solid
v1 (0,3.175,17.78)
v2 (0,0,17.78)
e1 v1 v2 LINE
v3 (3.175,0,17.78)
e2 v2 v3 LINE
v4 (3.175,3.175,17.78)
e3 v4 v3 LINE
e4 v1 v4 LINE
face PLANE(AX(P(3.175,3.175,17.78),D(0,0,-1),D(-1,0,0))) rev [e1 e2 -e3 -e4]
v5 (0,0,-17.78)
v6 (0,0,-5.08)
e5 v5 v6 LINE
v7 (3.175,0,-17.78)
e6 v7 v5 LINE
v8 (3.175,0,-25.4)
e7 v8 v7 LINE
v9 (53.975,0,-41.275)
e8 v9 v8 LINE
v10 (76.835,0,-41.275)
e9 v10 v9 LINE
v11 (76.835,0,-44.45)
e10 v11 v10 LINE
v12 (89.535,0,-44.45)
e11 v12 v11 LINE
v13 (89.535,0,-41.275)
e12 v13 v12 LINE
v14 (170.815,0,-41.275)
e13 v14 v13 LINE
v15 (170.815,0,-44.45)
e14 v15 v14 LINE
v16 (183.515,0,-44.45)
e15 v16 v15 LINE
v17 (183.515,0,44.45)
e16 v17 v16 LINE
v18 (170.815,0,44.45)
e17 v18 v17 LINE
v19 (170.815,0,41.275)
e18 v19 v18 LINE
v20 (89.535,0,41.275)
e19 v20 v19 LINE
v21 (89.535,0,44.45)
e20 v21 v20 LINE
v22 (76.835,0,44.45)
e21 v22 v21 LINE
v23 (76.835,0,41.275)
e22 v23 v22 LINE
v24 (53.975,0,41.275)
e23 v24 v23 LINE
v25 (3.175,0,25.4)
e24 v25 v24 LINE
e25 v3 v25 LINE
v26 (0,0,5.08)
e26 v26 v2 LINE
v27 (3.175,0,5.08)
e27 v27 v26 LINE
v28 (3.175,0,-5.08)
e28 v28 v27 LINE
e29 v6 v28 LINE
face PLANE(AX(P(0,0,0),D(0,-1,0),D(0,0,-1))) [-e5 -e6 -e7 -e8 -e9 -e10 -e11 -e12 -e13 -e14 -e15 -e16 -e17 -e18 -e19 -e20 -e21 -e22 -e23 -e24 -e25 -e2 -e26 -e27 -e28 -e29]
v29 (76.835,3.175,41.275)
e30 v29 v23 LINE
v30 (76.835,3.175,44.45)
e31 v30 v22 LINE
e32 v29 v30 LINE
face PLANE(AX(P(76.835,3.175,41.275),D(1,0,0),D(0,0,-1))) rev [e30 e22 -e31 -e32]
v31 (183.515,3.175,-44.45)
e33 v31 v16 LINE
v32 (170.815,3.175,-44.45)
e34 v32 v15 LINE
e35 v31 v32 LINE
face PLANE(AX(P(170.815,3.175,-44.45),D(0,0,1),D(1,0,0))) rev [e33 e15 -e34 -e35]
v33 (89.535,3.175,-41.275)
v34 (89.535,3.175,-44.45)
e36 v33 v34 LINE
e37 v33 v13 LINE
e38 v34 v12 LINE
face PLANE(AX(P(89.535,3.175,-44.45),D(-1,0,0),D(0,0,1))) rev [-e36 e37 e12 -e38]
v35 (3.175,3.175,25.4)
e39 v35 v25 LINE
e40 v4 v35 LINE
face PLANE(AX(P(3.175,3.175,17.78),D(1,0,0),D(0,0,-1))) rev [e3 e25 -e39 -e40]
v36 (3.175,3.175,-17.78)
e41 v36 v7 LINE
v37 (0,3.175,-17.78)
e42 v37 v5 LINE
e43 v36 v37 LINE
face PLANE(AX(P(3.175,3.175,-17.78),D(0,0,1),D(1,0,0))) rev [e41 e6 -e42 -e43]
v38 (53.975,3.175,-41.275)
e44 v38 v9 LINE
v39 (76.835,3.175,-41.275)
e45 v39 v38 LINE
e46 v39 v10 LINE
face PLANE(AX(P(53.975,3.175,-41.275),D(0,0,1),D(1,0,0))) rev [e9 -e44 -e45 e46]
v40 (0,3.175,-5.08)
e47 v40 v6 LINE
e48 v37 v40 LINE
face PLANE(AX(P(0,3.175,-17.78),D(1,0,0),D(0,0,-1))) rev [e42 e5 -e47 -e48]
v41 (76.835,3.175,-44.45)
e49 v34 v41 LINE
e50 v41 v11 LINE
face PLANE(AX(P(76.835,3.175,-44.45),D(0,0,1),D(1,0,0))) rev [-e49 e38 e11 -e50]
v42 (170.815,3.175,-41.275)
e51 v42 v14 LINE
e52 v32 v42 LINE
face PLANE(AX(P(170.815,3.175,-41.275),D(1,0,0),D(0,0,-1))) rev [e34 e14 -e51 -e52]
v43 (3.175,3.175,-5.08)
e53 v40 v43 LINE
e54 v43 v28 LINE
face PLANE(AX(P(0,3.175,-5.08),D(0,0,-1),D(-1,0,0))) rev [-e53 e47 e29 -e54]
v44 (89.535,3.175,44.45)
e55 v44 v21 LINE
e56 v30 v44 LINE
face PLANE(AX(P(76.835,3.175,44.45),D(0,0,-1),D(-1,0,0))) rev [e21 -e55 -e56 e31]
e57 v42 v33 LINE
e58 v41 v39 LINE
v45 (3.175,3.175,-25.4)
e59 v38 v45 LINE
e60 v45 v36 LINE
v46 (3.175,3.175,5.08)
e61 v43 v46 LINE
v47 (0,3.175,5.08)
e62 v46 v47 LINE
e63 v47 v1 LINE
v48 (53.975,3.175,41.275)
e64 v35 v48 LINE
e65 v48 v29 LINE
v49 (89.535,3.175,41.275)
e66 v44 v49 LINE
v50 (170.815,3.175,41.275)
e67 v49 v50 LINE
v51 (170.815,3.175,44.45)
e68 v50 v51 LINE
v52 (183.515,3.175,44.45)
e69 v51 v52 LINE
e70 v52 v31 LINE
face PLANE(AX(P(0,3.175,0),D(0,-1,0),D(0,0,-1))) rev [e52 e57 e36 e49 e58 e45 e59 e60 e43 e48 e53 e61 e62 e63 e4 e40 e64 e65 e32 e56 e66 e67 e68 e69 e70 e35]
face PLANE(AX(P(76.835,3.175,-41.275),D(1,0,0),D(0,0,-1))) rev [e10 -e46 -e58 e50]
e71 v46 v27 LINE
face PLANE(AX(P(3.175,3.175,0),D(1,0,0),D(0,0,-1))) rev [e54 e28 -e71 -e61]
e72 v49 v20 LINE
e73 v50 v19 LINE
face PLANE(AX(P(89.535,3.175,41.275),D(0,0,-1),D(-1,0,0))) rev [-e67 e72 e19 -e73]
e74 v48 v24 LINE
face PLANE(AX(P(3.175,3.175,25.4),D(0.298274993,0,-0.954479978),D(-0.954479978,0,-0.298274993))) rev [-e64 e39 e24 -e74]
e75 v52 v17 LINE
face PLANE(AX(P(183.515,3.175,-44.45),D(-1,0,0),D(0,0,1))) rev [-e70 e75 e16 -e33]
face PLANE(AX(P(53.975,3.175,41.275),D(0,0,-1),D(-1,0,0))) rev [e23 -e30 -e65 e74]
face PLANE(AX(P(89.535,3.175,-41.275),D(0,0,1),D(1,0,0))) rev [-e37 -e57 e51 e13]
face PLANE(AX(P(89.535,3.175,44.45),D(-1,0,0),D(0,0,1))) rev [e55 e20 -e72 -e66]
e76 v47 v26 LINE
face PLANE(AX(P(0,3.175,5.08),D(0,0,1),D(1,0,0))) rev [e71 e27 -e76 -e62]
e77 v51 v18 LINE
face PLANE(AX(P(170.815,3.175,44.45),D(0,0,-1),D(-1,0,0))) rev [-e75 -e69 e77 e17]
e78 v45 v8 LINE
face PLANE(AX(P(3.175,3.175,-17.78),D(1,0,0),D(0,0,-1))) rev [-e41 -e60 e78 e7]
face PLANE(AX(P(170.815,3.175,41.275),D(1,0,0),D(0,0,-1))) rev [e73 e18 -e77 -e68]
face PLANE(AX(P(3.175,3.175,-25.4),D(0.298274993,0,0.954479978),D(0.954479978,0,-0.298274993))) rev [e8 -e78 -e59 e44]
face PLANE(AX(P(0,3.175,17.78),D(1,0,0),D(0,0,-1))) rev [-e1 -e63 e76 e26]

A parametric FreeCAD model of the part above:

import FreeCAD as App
import Part
import Sketcher

V = App.Vector
Q = App.Units.Quantity


def add_polygon(sketch, points):
    """Adds a closed chain of lines whose ends are joined by coincident constraints."""
    first, n = sketch.GeometryCount, len(points)
    for a, b in zip(points, points[1:] + points[:1]):
        sketch.addGeometry(Part.LineSegment(App.Vector(*a, 0), App.Vector(*b, 0)), False)
    for i in range(n):
        sketch.addConstraint(Sketcher.Constraint("Coincident", first + i, 2, first + (i + 1) % n, 1))

doc = App.newDocument("Part")
body = doc.addObject("PartDesign::Body", "Body")

sketch1 = body.newObject("Sketcher::SketchObject", "Sketch")
sketch1.AttachmentSupport = (doc.getObject("XZ_Plane"), [""])
sketch1.MapMode = "FlatFace"
add_polygon(sketch1, [(3.2, 5.1), (0, 5.1), (0, 17.8), (3.2, 17.8), (3.2, 25.4), (54, 41.3), (76.8, 41.3), (76.8, 44.5), (89.5, 44.5), (89.5, 41.3), (170.8, 41.3), (170.8, 44.5), (183.5, 44.5), (183.5, -44.5), (170.8, -44.5), (170.8, -41.3), (89.5, -41.3), (89.5, -44.5), (76.8, -44.5), (76.8, -41.3), (54, -41.3), (3.2, -25.4), (3.2, -17.8), (0, -17.8), (0, -5.1), (3.2, -5.1)])
sketch1.addConstraint([
    Sketcher.Constraint("Horizontal", 0),
    Sketcher.Constraint("Vertical", 1),
    Sketcher.Constraint("Horizontal", 2),
    Sketcher.Constraint("Vertical", 3),
    Sketcher.Constraint("Horizontal", 5),
    Sketcher.Constraint("Vertical", 6),
    Sketcher.Constraint("Horizontal", 7),
    Sketcher.Constraint("Vertical", 8),
    Sketcher.Constraint("Horizontal", 9),
    Sketcher.Constraint("Vertical", 10),
    Sketcher.Constraint("Horizontal", 11),
    Sketcher.Constraint("Vertical", 12),
    Sketcher.Constraint("Horizontal", 13),
    Sketcher.Constraint("Vertical", 14),
    Sketcher.Constraint("Horizontal", 15),
    Sketcher.Constraint("Vertical", 16),
    Sketcher.Constraint("Horizontal", 17),
    Sketcher.Constraint("Vertical", 18),
    Sketcher.Constraint("Horizontal", 19),
    Sketcher.Constraint("Vertical", 21),
    Sketcher.Constraint("Horizontal", 22),
    Sketcher.Constraint("Vertical", 23),
    Sketcher.Constraint("Horizontal", 24),
    Sketcher.Constraint("Vertical", 25),
    Sketcher.Constraint("Symmetric", 1, 2, 22, 2, -1, 1),
    Sketcher.Constraint("Symmetric", 10, 2, 13, 2, -1),
    Sketcher.Constraint("Symmetric", 8, 2, 15, 2, -1),
    Sketcher.Constraint("Symmetric", 6, 2, 17, 2, -1),
    Sketcher.Constraint("Symmetric", 4, 2, 19, 2, -1),
    Sketcher.Constraint("Symmetric", 3, 2, 20, 2, -1),
    Sketcher.Constraint("Symmetric", 0, 2, 23, 2, -1),
    Sketcher.Constraint("Horizontal", 5, 2, 8, 2),
    Sketcher.Constraint("Horizontal", 7, 2, 10, 2),
    Sketcher.Constraint("Vertical", 21, 2, 24, 2),
    Sketcher.Constraint("Equal", 7, 11),
    Sketcher.Constraint("Equal", 17, 1),
    Sketcher.Constraint("Equal", 24, 6),
    Sketcher.Constraint("DistanceX", 5, 1, 5, 2, Q("0.9 in")),
    Sketcher.Constraint("DistanceX", 7, 1, 7, 2, Q("0.5 in")),
    Sketcher.Constraint("DistanceX", 9, 1, 9, 2, Q("3.2 in")),
    Sketcher.Constraint("DistanceY", 3, 1, 3, 2, Q("0.3 in")),
    Sketcher.Constraint("DistanceY", 12, 2, 12, 1, Q("3.5 in")),
    Sketcher.Constraint("DistanceY", 25, 1, 25, 2, Q("0.4 in")),
    Sketcher.Constraint("DistanceX", 3, 2, 4, 2, Q("2 in")),
    Sketcher.Constraint("DistanceX", 0, 2, 0, 1, Q("0.125 in")),
])
pad1 = body.newObject("PartDesign::Pad", "Pad")
pad1.Profile = sketch1
pad1.Length = Q("0.125 in")
pad1.Reversed = True

doc.recompute()
